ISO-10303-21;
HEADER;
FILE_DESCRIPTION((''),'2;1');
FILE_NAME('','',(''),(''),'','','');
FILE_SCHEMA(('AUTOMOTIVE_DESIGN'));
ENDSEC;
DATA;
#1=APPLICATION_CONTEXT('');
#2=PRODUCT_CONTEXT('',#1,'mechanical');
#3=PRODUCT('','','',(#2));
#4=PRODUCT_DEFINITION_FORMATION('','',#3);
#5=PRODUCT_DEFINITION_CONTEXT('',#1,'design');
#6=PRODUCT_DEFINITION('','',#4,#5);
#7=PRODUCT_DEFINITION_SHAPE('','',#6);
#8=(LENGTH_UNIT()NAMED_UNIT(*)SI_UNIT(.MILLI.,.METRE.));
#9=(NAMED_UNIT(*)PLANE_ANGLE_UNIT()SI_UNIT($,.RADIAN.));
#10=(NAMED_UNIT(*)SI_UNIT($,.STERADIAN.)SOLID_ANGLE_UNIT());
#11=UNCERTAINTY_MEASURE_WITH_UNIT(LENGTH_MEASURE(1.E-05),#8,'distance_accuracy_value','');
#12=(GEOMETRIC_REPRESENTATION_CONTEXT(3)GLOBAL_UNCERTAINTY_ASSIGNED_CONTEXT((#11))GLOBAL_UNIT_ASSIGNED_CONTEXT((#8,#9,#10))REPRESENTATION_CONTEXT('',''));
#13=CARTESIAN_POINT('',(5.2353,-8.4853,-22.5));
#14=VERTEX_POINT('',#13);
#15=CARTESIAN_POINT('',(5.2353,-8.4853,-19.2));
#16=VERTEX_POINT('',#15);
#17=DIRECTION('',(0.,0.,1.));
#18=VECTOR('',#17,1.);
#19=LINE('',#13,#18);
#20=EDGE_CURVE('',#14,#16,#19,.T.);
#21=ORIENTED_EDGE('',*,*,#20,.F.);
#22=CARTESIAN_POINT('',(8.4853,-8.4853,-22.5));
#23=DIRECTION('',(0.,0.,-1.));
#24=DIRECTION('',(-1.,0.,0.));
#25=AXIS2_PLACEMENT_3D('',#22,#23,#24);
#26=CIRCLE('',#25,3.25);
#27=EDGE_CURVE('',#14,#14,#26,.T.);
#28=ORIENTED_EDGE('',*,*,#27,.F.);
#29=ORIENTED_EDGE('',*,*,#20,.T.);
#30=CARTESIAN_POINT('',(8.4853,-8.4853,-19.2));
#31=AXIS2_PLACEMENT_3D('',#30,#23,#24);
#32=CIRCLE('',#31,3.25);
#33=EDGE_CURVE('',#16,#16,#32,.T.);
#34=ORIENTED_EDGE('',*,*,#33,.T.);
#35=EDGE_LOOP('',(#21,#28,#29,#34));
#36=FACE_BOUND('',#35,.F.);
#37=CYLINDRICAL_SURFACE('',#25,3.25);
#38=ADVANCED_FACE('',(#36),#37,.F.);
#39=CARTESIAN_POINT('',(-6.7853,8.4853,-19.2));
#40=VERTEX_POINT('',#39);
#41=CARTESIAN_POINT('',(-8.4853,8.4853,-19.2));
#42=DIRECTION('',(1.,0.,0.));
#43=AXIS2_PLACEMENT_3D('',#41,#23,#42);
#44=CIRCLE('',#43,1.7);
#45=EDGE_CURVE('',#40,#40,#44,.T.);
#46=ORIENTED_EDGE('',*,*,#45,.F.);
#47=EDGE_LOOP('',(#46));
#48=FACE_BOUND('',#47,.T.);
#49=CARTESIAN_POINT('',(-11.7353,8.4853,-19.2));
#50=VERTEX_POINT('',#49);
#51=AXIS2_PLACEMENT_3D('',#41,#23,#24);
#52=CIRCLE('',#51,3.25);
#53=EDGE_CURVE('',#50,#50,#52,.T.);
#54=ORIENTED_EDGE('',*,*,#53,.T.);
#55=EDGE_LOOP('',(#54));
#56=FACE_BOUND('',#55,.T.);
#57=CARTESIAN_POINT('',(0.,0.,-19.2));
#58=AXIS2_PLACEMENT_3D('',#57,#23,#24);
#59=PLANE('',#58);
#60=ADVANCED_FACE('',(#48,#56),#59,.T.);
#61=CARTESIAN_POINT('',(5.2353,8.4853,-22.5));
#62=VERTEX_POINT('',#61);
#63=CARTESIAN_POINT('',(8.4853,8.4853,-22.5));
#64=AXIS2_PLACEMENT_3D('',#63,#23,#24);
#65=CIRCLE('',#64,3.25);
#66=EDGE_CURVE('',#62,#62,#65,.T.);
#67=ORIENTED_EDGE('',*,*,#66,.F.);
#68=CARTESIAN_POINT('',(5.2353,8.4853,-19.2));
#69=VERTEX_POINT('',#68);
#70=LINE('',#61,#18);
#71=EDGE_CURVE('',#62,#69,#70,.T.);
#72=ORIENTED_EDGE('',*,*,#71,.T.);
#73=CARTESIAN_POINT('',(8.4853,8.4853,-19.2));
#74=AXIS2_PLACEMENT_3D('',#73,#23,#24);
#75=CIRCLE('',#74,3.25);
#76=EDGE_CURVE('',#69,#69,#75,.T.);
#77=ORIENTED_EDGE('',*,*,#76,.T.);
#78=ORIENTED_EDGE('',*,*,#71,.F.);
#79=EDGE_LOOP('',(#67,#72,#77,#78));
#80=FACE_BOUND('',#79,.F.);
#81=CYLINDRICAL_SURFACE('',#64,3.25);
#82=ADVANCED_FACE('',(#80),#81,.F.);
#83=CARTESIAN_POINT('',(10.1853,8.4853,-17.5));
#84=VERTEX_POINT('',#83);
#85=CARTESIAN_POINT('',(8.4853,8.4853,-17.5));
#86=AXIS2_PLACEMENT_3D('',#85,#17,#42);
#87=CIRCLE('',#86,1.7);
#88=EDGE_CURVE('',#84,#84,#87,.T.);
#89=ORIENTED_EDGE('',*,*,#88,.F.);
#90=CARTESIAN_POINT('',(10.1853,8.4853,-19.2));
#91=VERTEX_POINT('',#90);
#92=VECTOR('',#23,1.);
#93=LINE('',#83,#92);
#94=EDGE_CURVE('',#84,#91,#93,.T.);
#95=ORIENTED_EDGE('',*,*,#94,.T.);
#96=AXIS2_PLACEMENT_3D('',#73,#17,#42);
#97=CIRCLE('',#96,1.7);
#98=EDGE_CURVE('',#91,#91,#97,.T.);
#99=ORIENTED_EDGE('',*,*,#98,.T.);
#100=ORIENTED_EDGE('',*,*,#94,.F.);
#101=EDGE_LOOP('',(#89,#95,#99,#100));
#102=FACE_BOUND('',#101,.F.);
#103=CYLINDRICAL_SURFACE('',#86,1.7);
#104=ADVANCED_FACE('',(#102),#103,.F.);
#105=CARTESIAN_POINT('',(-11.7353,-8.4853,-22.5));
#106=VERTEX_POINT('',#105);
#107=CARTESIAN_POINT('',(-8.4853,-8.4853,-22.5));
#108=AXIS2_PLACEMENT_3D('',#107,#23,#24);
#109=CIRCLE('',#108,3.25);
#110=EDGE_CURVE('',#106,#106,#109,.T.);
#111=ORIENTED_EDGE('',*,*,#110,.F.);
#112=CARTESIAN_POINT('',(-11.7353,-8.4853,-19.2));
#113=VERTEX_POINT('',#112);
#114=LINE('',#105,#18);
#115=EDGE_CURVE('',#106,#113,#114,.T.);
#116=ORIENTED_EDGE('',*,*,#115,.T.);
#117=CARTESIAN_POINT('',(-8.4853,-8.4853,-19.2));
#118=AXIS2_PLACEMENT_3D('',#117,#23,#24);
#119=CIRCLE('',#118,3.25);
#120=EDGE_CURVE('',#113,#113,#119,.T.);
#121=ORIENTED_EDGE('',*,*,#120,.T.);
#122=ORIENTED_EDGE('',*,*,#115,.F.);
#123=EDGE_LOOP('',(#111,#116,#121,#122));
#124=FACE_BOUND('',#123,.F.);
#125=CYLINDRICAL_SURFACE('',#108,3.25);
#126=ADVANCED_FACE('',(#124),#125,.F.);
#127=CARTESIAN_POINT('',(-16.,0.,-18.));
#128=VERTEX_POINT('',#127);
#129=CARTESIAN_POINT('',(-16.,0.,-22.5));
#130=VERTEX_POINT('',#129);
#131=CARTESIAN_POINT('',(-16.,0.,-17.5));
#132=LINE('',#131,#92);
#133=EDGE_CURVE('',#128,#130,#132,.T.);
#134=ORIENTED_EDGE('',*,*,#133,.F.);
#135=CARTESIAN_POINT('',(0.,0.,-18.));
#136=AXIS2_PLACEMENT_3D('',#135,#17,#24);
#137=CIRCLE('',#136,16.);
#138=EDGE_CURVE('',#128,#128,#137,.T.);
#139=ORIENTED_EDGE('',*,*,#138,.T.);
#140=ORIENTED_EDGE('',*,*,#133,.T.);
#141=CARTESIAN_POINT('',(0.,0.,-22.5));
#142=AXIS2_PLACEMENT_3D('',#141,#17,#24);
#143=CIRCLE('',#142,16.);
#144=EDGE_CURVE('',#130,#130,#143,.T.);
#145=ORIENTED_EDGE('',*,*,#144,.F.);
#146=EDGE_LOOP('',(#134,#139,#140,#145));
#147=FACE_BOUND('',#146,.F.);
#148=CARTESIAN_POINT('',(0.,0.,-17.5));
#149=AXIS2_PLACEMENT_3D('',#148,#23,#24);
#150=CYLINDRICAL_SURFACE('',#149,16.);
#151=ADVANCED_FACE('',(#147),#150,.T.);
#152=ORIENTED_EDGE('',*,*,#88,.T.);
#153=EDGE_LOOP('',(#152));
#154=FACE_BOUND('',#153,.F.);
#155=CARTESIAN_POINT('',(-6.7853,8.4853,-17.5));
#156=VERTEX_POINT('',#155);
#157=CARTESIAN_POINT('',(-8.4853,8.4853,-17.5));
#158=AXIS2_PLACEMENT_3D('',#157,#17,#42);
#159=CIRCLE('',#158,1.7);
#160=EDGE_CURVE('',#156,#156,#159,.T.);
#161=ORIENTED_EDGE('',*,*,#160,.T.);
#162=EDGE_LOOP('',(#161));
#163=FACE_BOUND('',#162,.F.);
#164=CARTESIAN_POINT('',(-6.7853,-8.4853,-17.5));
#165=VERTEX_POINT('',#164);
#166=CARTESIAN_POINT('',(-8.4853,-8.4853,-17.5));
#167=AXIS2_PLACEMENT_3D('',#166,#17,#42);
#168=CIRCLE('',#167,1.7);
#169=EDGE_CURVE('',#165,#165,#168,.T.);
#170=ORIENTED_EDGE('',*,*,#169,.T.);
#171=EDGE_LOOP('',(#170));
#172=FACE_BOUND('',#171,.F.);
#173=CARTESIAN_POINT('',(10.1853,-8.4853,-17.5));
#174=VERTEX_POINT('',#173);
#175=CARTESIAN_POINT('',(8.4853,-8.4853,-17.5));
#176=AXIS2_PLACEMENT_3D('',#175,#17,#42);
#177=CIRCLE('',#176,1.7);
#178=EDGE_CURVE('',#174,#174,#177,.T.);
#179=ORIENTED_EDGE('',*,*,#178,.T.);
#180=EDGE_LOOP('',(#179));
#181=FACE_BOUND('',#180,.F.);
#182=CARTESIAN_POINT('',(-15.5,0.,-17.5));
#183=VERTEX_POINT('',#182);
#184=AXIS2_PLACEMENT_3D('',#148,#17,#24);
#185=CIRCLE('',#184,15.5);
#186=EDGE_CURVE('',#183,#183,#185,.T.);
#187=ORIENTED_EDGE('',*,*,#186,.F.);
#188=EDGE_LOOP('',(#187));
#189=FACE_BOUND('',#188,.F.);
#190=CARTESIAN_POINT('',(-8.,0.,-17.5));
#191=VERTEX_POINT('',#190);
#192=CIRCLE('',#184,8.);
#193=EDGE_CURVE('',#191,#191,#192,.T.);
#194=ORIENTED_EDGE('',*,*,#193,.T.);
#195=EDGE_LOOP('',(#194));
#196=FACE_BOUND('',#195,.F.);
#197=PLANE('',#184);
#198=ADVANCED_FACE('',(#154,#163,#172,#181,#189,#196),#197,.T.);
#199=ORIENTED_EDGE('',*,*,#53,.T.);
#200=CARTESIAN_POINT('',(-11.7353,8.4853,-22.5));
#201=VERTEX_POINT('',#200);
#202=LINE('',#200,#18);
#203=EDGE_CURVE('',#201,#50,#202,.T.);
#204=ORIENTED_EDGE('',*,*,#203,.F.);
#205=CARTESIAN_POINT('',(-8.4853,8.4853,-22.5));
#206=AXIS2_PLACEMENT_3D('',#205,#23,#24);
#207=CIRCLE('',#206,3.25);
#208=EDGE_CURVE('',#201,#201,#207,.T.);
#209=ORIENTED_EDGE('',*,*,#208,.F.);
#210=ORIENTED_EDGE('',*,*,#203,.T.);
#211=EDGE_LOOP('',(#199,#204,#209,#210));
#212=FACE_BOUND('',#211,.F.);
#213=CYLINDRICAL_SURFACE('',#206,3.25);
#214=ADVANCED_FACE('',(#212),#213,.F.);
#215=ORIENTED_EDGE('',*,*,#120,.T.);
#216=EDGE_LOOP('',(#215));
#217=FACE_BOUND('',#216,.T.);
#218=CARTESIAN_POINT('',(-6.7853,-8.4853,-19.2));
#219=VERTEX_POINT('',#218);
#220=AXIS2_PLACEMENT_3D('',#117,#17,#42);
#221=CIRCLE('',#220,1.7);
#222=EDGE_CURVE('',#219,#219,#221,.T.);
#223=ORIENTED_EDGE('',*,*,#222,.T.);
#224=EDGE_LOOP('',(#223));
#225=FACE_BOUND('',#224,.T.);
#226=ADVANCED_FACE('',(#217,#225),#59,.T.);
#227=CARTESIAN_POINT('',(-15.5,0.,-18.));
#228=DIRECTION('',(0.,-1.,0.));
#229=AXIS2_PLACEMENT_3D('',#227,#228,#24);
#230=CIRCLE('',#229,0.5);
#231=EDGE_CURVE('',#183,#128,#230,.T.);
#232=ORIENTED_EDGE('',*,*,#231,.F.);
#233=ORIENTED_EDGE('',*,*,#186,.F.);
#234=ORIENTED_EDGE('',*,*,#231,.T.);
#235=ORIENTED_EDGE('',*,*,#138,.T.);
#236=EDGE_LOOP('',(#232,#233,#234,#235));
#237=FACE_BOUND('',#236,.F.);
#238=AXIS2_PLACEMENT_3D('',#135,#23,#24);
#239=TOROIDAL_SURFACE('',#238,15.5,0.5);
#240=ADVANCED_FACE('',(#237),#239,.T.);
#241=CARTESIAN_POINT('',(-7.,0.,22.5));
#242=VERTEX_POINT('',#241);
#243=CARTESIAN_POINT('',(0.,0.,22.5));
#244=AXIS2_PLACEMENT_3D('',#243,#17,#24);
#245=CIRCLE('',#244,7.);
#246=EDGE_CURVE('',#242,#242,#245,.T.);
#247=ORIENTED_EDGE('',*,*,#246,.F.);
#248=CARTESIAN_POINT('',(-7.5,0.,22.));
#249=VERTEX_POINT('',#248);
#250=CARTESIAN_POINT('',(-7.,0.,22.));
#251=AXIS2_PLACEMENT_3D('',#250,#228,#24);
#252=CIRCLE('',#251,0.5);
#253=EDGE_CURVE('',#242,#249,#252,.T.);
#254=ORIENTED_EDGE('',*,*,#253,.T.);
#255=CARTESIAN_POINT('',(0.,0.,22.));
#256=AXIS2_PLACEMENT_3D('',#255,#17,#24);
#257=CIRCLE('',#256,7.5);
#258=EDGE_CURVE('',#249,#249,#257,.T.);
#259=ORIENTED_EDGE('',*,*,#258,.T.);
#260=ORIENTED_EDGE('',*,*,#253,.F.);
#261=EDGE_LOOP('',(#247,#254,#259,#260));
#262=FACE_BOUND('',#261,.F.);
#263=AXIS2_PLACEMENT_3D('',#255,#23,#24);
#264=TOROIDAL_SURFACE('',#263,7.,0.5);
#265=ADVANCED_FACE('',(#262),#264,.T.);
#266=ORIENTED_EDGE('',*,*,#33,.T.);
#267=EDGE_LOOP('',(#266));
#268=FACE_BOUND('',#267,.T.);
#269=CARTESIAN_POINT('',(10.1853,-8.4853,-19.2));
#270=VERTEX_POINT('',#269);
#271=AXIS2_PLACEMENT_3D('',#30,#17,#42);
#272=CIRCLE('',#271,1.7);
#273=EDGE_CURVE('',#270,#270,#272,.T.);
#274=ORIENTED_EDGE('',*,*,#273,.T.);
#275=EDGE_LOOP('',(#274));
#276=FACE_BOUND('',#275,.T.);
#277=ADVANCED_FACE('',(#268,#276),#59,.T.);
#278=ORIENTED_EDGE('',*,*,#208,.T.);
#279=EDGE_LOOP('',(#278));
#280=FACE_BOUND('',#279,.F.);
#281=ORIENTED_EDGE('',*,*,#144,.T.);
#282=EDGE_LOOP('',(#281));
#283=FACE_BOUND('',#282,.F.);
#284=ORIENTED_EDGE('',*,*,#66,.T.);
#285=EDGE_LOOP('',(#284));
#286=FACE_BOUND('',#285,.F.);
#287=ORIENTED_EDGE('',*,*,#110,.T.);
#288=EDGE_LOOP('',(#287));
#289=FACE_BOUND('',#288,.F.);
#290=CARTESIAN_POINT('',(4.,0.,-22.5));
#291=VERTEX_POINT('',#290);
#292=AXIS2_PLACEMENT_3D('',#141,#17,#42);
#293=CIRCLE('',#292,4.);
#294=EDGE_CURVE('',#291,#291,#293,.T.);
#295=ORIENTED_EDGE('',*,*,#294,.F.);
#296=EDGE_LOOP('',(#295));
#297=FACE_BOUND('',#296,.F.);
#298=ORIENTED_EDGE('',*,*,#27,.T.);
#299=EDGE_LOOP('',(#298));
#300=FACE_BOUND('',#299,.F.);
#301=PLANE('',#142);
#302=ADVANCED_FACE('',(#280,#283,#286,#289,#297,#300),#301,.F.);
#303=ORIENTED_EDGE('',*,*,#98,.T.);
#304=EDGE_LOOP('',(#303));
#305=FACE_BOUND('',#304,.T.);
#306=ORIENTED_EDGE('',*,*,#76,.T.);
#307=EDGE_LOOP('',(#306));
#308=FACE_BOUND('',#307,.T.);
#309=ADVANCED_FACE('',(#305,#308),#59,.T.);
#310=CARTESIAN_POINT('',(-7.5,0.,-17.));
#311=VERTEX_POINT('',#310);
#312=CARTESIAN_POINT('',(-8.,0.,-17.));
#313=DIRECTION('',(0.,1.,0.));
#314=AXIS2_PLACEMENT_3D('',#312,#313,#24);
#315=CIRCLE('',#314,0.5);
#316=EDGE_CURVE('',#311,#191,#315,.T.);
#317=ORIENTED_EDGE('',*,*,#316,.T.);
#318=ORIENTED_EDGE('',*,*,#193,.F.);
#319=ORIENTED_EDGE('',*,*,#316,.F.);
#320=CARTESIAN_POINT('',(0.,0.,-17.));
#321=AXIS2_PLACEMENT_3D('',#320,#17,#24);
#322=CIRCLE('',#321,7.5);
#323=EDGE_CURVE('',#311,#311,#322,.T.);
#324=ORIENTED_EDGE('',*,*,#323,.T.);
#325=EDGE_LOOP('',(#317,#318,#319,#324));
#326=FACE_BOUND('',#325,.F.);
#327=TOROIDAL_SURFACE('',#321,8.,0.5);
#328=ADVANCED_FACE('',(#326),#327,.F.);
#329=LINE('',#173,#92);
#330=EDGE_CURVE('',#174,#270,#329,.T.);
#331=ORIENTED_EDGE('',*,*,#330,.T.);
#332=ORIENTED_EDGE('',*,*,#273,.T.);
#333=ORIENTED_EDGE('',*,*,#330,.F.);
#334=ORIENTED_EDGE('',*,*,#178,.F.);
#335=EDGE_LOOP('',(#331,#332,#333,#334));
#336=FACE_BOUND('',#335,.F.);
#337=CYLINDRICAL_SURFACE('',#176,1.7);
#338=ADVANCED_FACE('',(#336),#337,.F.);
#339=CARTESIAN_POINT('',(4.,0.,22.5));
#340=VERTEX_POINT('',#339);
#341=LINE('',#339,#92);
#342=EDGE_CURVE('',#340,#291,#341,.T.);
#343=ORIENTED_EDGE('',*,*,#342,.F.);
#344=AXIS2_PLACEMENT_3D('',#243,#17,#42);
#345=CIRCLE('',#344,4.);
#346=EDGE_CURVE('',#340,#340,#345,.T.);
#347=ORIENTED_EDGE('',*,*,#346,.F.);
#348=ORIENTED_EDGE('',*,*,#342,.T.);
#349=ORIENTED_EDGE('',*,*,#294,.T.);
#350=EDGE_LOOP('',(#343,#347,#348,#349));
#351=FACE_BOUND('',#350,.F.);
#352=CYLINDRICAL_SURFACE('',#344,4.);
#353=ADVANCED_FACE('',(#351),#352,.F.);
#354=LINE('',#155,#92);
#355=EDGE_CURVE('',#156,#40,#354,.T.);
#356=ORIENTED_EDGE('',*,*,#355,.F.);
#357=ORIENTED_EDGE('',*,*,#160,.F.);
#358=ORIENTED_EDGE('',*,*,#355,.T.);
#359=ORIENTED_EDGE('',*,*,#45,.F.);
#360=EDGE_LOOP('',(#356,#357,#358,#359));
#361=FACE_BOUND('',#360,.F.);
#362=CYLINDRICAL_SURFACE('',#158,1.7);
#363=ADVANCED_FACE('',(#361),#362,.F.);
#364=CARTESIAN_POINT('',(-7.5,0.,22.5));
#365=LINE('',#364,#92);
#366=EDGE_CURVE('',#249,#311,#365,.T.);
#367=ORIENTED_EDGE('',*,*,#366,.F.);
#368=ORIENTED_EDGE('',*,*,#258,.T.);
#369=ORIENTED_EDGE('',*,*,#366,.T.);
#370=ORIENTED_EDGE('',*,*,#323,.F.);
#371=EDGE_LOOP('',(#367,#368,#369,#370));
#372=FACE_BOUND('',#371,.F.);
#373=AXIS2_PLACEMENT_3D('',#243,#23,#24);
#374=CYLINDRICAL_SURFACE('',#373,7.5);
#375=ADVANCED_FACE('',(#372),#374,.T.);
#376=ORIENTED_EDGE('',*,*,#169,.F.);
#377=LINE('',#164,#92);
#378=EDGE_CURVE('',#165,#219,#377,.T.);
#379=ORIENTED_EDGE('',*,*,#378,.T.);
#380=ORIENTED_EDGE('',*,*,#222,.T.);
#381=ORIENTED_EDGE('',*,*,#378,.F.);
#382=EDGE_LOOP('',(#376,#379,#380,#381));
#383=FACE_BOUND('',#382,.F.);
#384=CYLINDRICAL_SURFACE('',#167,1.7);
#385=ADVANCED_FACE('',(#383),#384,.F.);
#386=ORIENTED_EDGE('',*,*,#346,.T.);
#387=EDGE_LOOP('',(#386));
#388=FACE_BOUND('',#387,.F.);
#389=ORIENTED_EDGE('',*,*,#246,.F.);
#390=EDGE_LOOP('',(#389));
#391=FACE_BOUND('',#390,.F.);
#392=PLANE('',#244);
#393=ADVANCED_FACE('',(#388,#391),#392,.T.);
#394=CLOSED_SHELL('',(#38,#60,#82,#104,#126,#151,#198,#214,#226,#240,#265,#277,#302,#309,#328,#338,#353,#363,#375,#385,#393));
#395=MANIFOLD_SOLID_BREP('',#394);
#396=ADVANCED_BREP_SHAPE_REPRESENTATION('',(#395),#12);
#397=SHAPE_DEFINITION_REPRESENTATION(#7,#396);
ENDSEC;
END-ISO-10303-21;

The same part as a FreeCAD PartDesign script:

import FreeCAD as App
import Part
import Sketcher

V = App.Vector


def edges_at(feature, points):
    """Names of the edges that pass closest to the given points."""
    edges = feature.Shape.Edges
    near = lambda p: min(range(len(edges)), key=lambda i: edges[i].distToShape(Part.Vertex(*p))[0])
    return sorted({f"Edge{near(p) + 1}" for p in points})


def add_polygon(sketch, points):
    """Adds a closed chain of lines whose ends are joined by coincident constraints."""
    first, n = sketch.GeometryCount, len(points)
    for a, b in zip(points, points[1:] + points[:1]):
        sketch.addGeometry(Part.LineSegment(App.Vector(*a, 0), App.Vector(*b, 0)), False)
    for i in range(n):
        sketch.addConstraint(Sketcher.Constraint("Coincident", first + i, 2, first + (i + 1) % n, 1))

doc = App.newDocument("Part")
body = doc.addObject("PartDesign::Body", "Body")

# Sketch on XZ plane
sketch1 = doc.addObject("Sketcher::SketchObject", "Sketch")
body.addObject(sketch1)
sketch1.AttachmentSupport = (doc.XZ_Plane, [""])
sketch1.MapMode = "FlatFace"
add_polygon(sketch1, [(-7.5, 22.5), (0, 22.5), (0, -22.5), (-16, -22.5), (-16, -17.5), (-7.5, -17.5)])  # lines 0-5
sketch1.addConstraint(Sketcher.Constraint("Horizontal", 0))
sketch1.addConstraint(Sketcher.Constraint("Vertical", 1))
sketch1.addConstraint(Sketcher.Constraint("Horizontal", 2))
sketch1.addConstraint(Sketcher.Constraint("Vertical", 3))
sketch1.addConstraint(Sketcher.Constraint("Horizontal", 4))
sketch1.addConstraint(Sketcher.Constraint("Vertical", 5))
sketch1.addConstraint(Sketcher.Constraint("Symmetric", 0, 2, 1, 2, -1, 1))
sketch1.addConstraint(Sketcher.Constraint("DistanceX", 2, 2, 2, 1, 16.0))
sketch1.addConstraint(Sketcher.Constraint("DistanceY", 1, 2, 1, 1, 45.0))
sketch1.addConstraint(Sketcher.Constraint("DistanceY", 3, 1, 3, 2, 5.0))
sketch1.addConstraint(Sketcher.Constraint("DistanceX", 0, 1, 0, 2, 7.5))
revolution = doc.addObject("PartDesign::Revolution", "Revolution")
body.addObject(revolution)
revolution.Profile = sketch1
revolution.ReferenceAxis = (sketch1, ["V_Axis"])
revolution.Angle = 360

# Sketch on XY plane
sketch2 = doc.addObject("Sketcher::SketchObject", "Sketch001")
body.addObject(sketch2)
sketch2.AttachmentSupport = (doc.XY_Plane, [""])
sketch2.MapMode = "FlatFace"
sketch2.AttachmentOffset = App.Placement(V(0, 0, 22.5), App.Rotation())
sketch2.addGeometry(Part.Circle(V(0, 0, 0), V(0, 0, 1), 4), False)
sketch2.addConstraint(Sketcher.Constraint("Coincident", 0, 3, -1, 1))
sketch2.addConstraint(Sketcher.Constraint("Diameter", 0, 8.0))
pocket1 = doc.addObject("PartDesign::Pocket", "Pocket")
body.addObject(pocket1)
pocket1.Profile = sketch2
pocket1.Type = "UpToFirst"

# Sketch on XY plane
sketch3 = doc.addObject("Sketcher::SketchObject", "Sketch002")
body.addObject(sketch3)
sketch3.AttachmentSupport = (doc.XY_Plane, [""])
sketch3.MapMode = "FlatFace"
sketch3.AttachmentOffset = App.Placement(V(0, 0, -17.5), App.Rotation())
sketch3.addGeometry(Part.Circle(V(-8.4853, 8.4853, 0), V(0, 0, 1), 1.7), False)
sketch3.addGeometry(Part.Circle(V(-8.4853, -8.4853, 0), V(0, 0, 1), 1.7), False)
sketch3.addGeometry(Part.Circle(V(8.4853, -8.4853, 0), V(0, 0, 1), 1.7), False)
sketch3.addGeometry(Part.Circle(V(8.4853, 8.4853, 0), V(0, 0, 1), 1.7), False)
sketch3.addConstraint(Sketcher.Constraint("Equal", 0, 1))
sketch3.addConstraint(Sketcher.Constraint("Equal", 1, 2))
sketch3.addConstraint(Sketcher.Constraint("Equal", 2, 3))
sketch3.addConstraint(Sketcher.Constraint("Symmetric", 0, 3, 2, 3, -1, 1))
sketch3.addConstraint(Sketcher.Constraint("Symmetric", 1, 3, 3, 3, -1, 1))
sketch3.addConstraint(Sketcher.Constraint("Symmetric", 1, 3, 2, 3, -2))
sketch3.addConstraint(Sketcher.Constraint("Diameter", 0, 3.4))
sketch3.addConstraint(Sketcher.Constraint("DistanceX", 0, 3, -1, 1, 8.4853))
sketch3.addConstraint(Sketcher.Constraint("DistanceY", -1, 1, 0, 3, 8.4853))
pocket2 = doc.addObject("PartDesign::Pocket", "Pocket001")
body.addObject(pocket2)
pocket2.Profile = sketch3
pocket2.Length = 5

# Sketch on XY plane
sketch4 = doc.addObject("Sketcher::SketchObject", "Sketch003")
body.addObject(sketch4)
sketch4.AttachmentSupport = (doc.XY_Plane, [""])
sketch4.MapMode = "FlatFace"
sketch4.AttachmentOffset = App.Placement(V(0, 0, -22.5), App.Rotation())
sketch4.addGeometry(Part.Circle(V(-8.4853, 8.4853, 0), V(0, 0, 1), 3.25), False)
sketch4.addGeometry(Part.Circle(V(-8.4853, 8.4853, 0), V(0, 0, 1), 1.7), False)
sketch4.addGeometry(Part.Circle(V(8.4853, 8.4853, 0), V(0, 0, 1), 3.25), False)
sketch4.addGeometry(Part.Circle(V(8.4853, -8.4853, 0), V(0, 0, 1), 3.25), False)
sketch4.addGeometry(Part.Circle(V(-8.4853, -8.4853, 0), V(0, 0, 1), 3.25), False)
sketch4.addConstraint(Sketcher.Constraint("Coincident", 1, 3, 0, 3))
sketch4.addConstraint(Sketcher.Constraint("Equal", 0, 2))
sketch4.addConstraint(Sketcher.Constraint("Equal", 2, 3))
sketch4.addConstraint(Sketcher.Constraint("Equal", 3, 4))
sketch4.addConstraint(Sketcher.Constraint("Symmetric", 0, 3, 3, 3, -1, 1))
sketch4.addConstraint(Sketcher.Constraint("Symmetric", 2, 3, 4, 3, -1, 1))
sketch4.addConstraint(Sketcher.Constraint("Symmetric", 0, 3, 2, 3, -2))
sketch4.addConstraint(Sketcher.Constraint("Diameter", 0, 6.5))
sketch4.addConstraint(Sketcher.Constraint("Diameter", 1, 3.4))
sketch4.addConstraint(Sketcher.Constraint("DistanceX", 0, 3, -1, 1, 8.4853))
sketch4.addConstraint(Sketcher.Constraint("DistanceY", -1, 1, 0, 3, 8.4853))
pocket3 = doc.addObject("PartDesign::Pocket", "Pocket002")
body.addObject(pocket3)
pocket3.Profile = sketch4
pocket3.Length = 3.3
pocket3.Reversed = True
doc.recompute()

fillet = doc.addObject("PartDesign::Fillet", "Fillet")
body.addObject(fillet)
fillet.Base = (pocket3, edges_at(pocket3, [(7.5, 0, -17.5), (16, 0, -17.5), (7.5, 0, 22.5)]))
fillet.Radius = 0.5

doc.recompute()
